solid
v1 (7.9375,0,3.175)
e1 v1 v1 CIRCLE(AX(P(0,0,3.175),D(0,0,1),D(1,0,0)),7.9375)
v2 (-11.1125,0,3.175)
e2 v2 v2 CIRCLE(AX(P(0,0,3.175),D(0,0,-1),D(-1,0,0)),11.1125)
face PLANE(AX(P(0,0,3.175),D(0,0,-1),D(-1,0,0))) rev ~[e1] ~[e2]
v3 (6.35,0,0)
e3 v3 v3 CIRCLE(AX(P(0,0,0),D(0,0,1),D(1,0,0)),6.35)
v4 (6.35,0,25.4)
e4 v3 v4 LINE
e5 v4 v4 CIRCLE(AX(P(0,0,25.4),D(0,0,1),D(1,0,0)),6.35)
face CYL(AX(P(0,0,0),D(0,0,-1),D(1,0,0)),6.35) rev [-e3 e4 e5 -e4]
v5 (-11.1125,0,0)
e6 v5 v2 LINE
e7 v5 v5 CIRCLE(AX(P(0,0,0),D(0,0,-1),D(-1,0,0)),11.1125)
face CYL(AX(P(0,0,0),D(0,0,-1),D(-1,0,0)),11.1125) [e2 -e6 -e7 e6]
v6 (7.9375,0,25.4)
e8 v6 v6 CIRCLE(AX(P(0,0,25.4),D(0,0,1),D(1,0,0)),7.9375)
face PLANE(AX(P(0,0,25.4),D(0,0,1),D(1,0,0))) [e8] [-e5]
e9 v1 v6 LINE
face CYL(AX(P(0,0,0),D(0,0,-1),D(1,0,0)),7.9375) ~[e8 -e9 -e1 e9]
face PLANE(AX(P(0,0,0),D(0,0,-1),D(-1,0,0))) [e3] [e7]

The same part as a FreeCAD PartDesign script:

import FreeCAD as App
import Part
import Sketcher
Q = App.Units.Quantity

doc = App.newDocument("Part")
params = doc.addObject("Spreadsheet::Sheet", "Params")
for row, (alias, value) in enumerate([
    ("sketch1_diameter", "0.5 in"),
    ("sketch1_diameter2", "0.625 in"),
    ("pad1_length", "1 in"),
    ("sketch2_diameter", "0.875 in"),
    ("sketch2_diameter2", "0.625 in"),
    ("pad2_length", "0.125 in"),
], start=1):
    params.set(f"A{row}", alias)
    params.set(f"B{row}", "=" + value)
    params.setAlias(f"B{row}", alias)

body = doc.addObject("PartDesign::Body", "Body")

# Sketch on XY plane
sketch1 = doc.addObject("Sketcher::SketchObject", "Sketch")
body.addObject(sketch1)
sketch1.AttachmentSupport = (doc.XY_Plane, [""])
sketch1.MapMode = "FlatFace"
sketch1.addGeometry([
    Part.Circle(App.Vector(0, 0, 0), App.Vector(0, 0, 1), 7.9375),
    Part.Circle(App.Vector(0, 0, 0), App.Vector(0, 0, 1), 6.35),
], False)
sketch1.addConstraint([
    Sketcher.Constraint("Coincident", 0, 3, -1, 1),
    Sketcher.Constraint("Coincident", 1, 3, -1, 1),
    Sketcher.Constraint("Diameter", 1, Q("0.5 in")),
    Sketcher.Constraint("Diameter", 0, Q("0.625 in")),
])
sketch1.setExpression("Constraints[2]", "Params.sketch1_diameter")
sketch1.setExpression("Constraints[3]", "Params.sketch1_diameter2")
pad1 = doc.addObject("PartDesign::Pad", "Pad")
body.addObject(pad1)
pad1.Profile = sketch1
pad1.setExpression("Length", "Params.pad1_length")

# Sketch on XY plane
sketch2 = doc.addObject("Sketcher::SketchObject", "Sketch001")
body.addObject(sketch2)
sketch2.AttachmentSupport = (doc.XY_Plane, [""])
sketch2.MapMode = "FlatFace"
sketch2.addGeometry([
    Part.Circle(App.Vector(0, 0, 0), App.Vector(0, 0, 1), 11.1125),
    Part.Circle(App.Vector(0, 0, 0), App.Vector(0, 0, 1), 7.9375),
], False)
sketch2.addConstraint([
    Sketcher.Constraint("Coincident", 0, 3, -1, 1),
    Sketcher.Constraint("Coincident", 1, 3, -1, 1),
    Sketcher.Constraint("Diameter", 0, Q("0.875 in")),
    Sketcher.Constraint("Diameter", 1, Q("0.625 in")),
])
sketch2.setExpression("Constraints[2]", "Params.sketch2_diameter")
sketch2.setExpression("Constraints[3]", "Params.sketch2_diameter2")
pad2 = doc.addObject("PartDesign::Pad", "Pad001")
body.addObject(pad2)
pad2.Profile = sketch2
pad2.setExpression("Length", "Params.pad2_length")

doc.recompute()
